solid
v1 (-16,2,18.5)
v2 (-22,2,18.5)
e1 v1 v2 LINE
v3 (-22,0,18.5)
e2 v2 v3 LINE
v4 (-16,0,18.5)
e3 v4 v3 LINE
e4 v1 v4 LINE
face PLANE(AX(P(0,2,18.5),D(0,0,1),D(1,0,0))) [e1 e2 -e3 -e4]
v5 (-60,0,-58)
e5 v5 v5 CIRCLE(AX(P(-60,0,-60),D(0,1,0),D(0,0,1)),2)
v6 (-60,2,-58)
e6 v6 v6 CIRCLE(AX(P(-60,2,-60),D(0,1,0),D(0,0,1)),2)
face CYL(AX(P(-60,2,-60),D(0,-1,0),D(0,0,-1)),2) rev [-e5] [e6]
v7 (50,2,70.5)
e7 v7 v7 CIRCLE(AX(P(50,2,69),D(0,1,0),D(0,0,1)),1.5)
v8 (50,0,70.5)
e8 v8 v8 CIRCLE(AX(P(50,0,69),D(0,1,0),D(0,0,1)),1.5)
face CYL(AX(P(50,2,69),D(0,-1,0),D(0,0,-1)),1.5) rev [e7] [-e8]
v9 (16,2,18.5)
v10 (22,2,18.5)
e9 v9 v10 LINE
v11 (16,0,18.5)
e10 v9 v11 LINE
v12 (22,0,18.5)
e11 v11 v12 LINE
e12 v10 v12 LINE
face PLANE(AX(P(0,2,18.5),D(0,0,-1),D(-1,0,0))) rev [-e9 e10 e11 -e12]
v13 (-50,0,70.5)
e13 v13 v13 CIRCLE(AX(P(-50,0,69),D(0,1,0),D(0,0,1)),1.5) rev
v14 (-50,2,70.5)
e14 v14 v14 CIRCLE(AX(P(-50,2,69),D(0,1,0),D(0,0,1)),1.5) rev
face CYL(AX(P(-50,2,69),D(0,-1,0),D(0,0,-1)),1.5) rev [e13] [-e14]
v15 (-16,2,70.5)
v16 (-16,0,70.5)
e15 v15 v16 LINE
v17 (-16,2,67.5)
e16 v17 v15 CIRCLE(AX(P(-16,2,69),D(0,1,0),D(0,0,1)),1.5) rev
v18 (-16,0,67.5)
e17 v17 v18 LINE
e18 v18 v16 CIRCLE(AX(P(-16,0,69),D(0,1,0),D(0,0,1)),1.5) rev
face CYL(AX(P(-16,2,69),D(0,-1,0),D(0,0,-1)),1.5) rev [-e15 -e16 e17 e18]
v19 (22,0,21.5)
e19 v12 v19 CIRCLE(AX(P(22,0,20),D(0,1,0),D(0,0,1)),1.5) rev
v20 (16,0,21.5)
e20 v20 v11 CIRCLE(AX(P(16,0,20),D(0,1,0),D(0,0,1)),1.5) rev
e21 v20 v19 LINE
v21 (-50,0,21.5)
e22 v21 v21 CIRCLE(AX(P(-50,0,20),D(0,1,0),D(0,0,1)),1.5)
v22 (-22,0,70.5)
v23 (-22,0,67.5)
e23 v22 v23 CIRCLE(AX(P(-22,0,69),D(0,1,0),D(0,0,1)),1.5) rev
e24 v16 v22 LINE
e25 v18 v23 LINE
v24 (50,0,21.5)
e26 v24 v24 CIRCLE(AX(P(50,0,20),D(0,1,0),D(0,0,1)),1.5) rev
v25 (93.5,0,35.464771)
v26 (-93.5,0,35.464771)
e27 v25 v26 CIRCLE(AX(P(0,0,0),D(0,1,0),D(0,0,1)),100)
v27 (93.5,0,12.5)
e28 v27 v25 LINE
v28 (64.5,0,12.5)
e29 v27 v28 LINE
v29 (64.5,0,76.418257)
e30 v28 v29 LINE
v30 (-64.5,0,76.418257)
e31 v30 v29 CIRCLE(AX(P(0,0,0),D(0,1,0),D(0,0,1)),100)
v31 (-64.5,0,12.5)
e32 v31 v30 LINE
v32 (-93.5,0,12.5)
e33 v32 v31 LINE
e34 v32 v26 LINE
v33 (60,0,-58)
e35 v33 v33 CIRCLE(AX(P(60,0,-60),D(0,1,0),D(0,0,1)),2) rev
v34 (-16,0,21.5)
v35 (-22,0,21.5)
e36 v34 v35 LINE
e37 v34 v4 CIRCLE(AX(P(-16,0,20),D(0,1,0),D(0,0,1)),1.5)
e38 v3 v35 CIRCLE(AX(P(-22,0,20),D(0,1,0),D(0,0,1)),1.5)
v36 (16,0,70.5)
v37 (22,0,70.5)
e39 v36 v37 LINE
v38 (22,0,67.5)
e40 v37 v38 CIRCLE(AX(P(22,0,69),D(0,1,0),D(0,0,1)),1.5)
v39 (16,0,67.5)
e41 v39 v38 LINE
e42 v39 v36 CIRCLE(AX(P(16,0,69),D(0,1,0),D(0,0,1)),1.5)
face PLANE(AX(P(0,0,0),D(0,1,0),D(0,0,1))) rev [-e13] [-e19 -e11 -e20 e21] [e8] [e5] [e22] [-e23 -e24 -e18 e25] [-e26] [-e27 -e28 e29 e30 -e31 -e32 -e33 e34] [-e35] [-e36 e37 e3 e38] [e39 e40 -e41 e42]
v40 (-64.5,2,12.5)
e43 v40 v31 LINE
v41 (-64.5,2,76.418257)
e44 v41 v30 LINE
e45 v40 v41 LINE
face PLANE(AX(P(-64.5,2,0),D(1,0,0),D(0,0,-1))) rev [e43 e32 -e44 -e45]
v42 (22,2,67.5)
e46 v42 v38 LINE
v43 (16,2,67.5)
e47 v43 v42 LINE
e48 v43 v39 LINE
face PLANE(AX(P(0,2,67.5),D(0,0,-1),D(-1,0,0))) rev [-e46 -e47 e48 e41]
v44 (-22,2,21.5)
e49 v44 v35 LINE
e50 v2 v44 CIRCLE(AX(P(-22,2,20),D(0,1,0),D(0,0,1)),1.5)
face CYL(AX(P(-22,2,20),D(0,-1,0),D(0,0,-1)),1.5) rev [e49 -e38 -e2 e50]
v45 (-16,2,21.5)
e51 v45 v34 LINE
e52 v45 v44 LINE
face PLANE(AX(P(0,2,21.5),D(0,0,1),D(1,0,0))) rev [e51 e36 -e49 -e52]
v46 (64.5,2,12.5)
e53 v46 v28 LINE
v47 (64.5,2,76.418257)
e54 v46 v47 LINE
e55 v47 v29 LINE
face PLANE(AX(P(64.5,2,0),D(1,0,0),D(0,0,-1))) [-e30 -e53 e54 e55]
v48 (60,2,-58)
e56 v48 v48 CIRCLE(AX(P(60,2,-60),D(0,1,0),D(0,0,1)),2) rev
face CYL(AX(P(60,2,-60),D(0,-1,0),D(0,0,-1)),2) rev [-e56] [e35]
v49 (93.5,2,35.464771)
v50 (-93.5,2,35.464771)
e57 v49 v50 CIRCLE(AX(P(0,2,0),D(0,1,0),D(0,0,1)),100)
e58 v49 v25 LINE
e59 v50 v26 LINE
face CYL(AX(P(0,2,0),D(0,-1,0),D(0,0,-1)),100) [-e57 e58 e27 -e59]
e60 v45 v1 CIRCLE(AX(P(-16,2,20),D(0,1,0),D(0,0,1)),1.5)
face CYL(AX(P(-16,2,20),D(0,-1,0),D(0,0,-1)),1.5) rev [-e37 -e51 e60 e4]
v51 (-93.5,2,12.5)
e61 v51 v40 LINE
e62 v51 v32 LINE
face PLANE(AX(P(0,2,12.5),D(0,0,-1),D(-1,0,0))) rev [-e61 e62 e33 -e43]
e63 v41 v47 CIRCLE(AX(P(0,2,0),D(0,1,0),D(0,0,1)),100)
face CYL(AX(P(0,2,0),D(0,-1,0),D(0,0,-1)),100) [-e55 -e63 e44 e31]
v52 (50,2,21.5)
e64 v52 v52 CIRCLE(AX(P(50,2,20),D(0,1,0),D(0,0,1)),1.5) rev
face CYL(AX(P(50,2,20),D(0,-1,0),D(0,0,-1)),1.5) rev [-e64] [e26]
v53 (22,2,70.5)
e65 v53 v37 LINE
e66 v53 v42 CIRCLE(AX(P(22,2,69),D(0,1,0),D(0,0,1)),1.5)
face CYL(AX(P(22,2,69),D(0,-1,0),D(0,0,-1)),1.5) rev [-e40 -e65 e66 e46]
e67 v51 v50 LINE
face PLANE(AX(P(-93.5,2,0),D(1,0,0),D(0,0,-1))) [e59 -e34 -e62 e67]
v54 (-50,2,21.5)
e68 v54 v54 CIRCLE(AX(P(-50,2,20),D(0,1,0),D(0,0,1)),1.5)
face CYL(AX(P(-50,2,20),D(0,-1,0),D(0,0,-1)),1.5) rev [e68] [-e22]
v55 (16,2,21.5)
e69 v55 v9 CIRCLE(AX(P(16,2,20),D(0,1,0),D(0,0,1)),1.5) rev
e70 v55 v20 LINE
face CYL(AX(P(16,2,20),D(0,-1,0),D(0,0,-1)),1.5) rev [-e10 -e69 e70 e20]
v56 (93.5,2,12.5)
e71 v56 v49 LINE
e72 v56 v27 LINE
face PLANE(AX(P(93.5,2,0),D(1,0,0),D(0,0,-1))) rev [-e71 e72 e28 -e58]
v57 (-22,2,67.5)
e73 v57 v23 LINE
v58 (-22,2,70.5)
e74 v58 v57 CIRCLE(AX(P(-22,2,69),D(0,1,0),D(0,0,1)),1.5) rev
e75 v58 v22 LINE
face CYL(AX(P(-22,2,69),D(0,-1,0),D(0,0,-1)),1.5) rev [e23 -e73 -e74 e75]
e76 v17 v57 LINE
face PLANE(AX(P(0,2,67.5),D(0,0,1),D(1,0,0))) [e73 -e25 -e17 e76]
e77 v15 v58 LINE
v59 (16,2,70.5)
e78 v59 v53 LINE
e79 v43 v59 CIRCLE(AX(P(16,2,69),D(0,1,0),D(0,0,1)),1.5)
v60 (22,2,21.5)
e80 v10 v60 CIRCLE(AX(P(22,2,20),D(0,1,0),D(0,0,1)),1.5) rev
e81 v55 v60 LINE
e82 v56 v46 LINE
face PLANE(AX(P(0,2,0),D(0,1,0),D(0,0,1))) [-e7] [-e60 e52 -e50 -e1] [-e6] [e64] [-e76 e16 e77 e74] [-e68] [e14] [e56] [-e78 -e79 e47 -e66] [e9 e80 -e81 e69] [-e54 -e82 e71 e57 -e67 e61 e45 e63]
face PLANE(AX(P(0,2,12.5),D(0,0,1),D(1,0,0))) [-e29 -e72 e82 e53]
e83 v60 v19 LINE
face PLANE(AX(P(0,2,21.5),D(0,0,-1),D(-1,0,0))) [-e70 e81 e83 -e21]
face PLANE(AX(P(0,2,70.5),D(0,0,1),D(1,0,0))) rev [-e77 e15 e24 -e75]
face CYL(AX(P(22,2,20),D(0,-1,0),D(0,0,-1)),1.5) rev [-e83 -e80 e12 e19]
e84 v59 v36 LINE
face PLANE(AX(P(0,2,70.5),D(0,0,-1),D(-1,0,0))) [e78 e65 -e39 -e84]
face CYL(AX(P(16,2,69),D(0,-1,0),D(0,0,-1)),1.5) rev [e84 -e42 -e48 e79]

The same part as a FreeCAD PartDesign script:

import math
import FreeCAD as App
import Part
import Sketcher

V = App.Vector
Q = App.Units.Quantity

doc = App.newDocument("Part")
params = doc.addObject("Spreadsheet::Sheet", "Params")
for row, (alias, value) in enumerate([
    ("sketch1_diameter", "3 mm"),
    ("sketch1_diameter2", "4 mm"),
    ("sketch1_radius", "100 mm"),
    ("sketch1_width", "29 mm"),
    ("sketch1_width2", "6 mm"),
    ("pad1_length", "2 mm"),
], start=1):
    params.set(f"A{row}", alias)
    params.set(f"B{row}", "=" + value)
    params.setAlias(f"B{row}", alias)

body = doc.addObject("PartDesign::Body", "Body")

# Sketch on XZ plane
sketch1 = body.newObject("Sketcher::SketchObject", "Sketch")
sketch1.AttachmentSupport = (doc.getObject("XZ_Plane"), [""])
sketch1.MapMode = "FlatFace"
sketch1.addGeometry([
    Part.LineSegment(V(-93.5, 35.5, 0), V(-93.5, 12.5, 0)),  # 0
    Part.LineSegment(V(-93.5, 12.5, 0), V(-64.5, 12.5, 0)),  # 1
    Part.LineSegment(V(-64.5, 12.5, 0), V(-64.5, 76.4, 0)),  # 2
    Part.ArcOfCircle(Part.Circle(V(0, 0, 0), V(0, 0, 1), 100), math.radians(50), math.radians(130)),  # 3
    Part.LineSegment(V(64.5, 76.4, 0), V(64.5, 12.5, 0)),  # 4
    Part.LineSegment(V(64.5, 12.5, 0), V(93.5, 12.5, 0)),  # 5
    Part.LineSegment(V(93.5, 12.5, 0), V(93.5, 35.5, 0)),  # 6
    Part.ArcOfCircle(Part.Circle(V(0, 0, 0), V(0, 0, 1), 100), math.radians(159), math.radians(381)),  # 7
    Part.Circle(V(-50, 69, 0), V(0, 0, 1), 1.5),  # 8
    Part.ArcOfCircle(Part.Circle(V(-22, 69, 0), V(0, 0, 1), 1.5), math.radians(90), math.radians(270)),  # 9
    Part.LineSegment(V(-22, 67.5, 0), V(-16, 67.5, 0)),  # 10
    Part.ArcOfCircle(Part.Circle(V(-16, 69, 0), V(0, 0, 1), 1.5), math.radians(-90), math.radians(90)),  # 11
    Part.LineSegment(V(-16, 70.5, 0), V(-22, 70.5, 0)),  # 12
    Part.Circle(V(-50, 20, 0), V(0, 0, 1), 1.5),  # 13
    Part.LineSegment(V(-22, 18.5, 0), V(-16, 18.5, 0)),  # 14
    Part.ArcOfCircle(Part.Circle(V(-16, 20, 0), V(0, 0, 1), 1.5), math.radians(-90), math.radians(90)),  # 15
    Part.LineSegment(V(-16, 21.5, 0), V(-22, 21.5, 0)),  # 16
    Part.ArcOfCircle(Part.Circle(V(-22, 20, 0), V(0, 0, 1), 1.5), math.radians(90), math.radians(270)),  # 17
    Part.LineSegment(V(22, 70.5, 0), V(16, 70.5, 0)),  # 18
    Part.ArcOfCircle(Part.Circle(V(16, 69, 0), V(0, 0, 1), 1.5), math.radians(90), math.radians(270)),  # 19
    Part.LineSegment(V(16, 67.5, 0), V(22, 67.5, 0)),  # 20
    Part.ArcOfCircle(Part.Circle(V(22, 69, 0), V(0, 0, 1), 1.5), math.radians(-90), math.radians(90)),  # 21
    Part.Circle(V(50, 69, 0), V(0, 0, 1), 1.5),  # 22
    Part.ArcOfCircle(Part.Circle(V(22, 20, 0), V(0, 0, 1), 1.5), math.radians(-90), math.radians(90)),  # 23
    Part.LineSegment(V(22, 21.5, 0), V(16, 21.5, 0)),  # 24
    Part.ArcOfCircle(Part.Circle(V(16, 20, 0), V(0, 0, 1), 1.5), math.radians(90), math.radians(270)),  # 25
    Part.LineSegment(V(16, 18.5, 0), V(22, 18.5, 0)),  # 26
    Part.Circle(V(50, 20, 0), V(0, 0, 1), 1.5),  # 27
    Part.Circle(V(-60, -60, 0), V(0, 0, 1), 2),  # 28
    Part.Circle(V(60, -60, 0), V(0, 0, 1), 2),  # 29
], False)
sketch1.addConstraint([
    Sketcher.Constraint("Coincident", 0, 2, 1, 1),
    Sketcher.Constraint("Coincident", 1, 2, 2, 1),
    Sketcher.Constraint("Coincident", 2, 2, 3, 2),
    Sketcher.Constraint("Coincident", 3, 1, 4, 1),
    Sketcher.Constraint("Coincident", 4, 2, 5, 1),
    Sketcher.Constraint("Coincident", 5, 2, 6, 1),
    Sketcher.Constraint("Coincident", 6, 2, 7, 2),
    Sketcher.Constraint("Coincident", 7, 1, 0, 1),
    Sketcher.Constraint("Tangent", 9, 2, 10, 1),
    Sketcher.Constraint("Tangent", 10, 2, 11, 1),
    Sketcher.Constraint("Tangent", 11, 2, 12, 1),
    Sketcher.Constraint("Tangent", 12, 2, 9, 1),
    Sketcher.Constraint("Tangent", 14, 2, 15, 1),
    Sketcher.Constraint("Tangent", 15, 2, 16, 1),
    Sketcher.Constraint("Tangent", 16, 2, 17, 1),
    Sketcher.Constraint("Tangent", 17, 2, 14, 1),
    Sketcher.Constraint("Tangent", 18, 2, 19, 1),
    Sketcher.Constraint("Tangent", 19, 2, 20, 1),
    Sketcher.Constraint("Tangent", 20, 2, 21, 1),
    Sketcher.Constraint("Tangent", 21, 2, 18, 1),
    Sketcher.Constraint("Tangent", 23, 2, 24, 1),
    Sketcher.Constraint("Tangent", 24, 2, 25, 1),
    Sketcher.Constraint("Tangent", 25, 2, 26, 1),
    Sketcher.Constraint("Tangent", 26, 2, 23, 1),
    Sketcher.Constraint("Vertical", 0),
    Sketcher.Constraint("Horizontal", 1),
    Sketcher.Constraint("Vertical", 2),
    Sketcher.Constraint("Vertical", 4),
    Sketcher.Constraint("Horizontal", 5),
    Sketcher.Constraint("Vertical", 6),
    Sketcher.Constraint("Horizontal", 10),
    Sketcher.Constraint("Horizontal", 12),
    Sketcher.Constraint("Horizontal", 14),
    Sketcher.Constraint("Horizontal", 16),
    Sketcher.Constraint("Horizontal", 18),
    Sketcher.Constraint("Horizontal", 20),
    Sketcher.Constraint("Horizontal", 24),
    Sketcher.Constraint("Horizontal", 26),
    Sketcher.Constraint("Coincident", 3, 3, -1, 1),
    Sketcher.Constraint("Coincident", 7, 3, -1, 1),
    Sketcher.Constraint("Equal", 3, 7),
    Sketcher.Constraint("Equal", 8, 9),
    Sketcher.Constraint("Equal", 11, 13),
    Sketcher.Constraint("Equal", 13, 15),
    Sketcher.Constraint("Equal", 17, 19),
    Sketcher.Constraint("Equal", 21, 22),
    Sketcher.Constraint("Equal", 22, 23),
    Sketcher.Constraint("Equal", 25, 27),
    Sketcher.Constraint("Equal", 28, 29),
    Sketcher.Constraint("Symmetric", 11, 3, 19, 3, -2),
    Sketcher.Constraint("Symmetric", 8, 3, 22, 3, -2),
    Sketcher.Constraint("Symmetric", 17, 3, 23, 3, -2),
    Sketcher.Constraint("Symmetric", 13, 3, 27, 3, -2),
    Sketcher.Constraint("Symmetric", 28, 3, 29, 3, -2),
    Sketcher.Constraint("Symmetric", 1, 2, 4, 2, -2),
    Sketcher.Constraint("Horizontal", 8, 3, 9, 3),
    Sketcher.Constraint("Horizontal", 13, 3, 15, 3),
    Sketcher.Constraint("Horizontal", 6, 2, 7, 1),
    Sketcher.Constraint("Vertical", 8, 3, 13, 3),
    Sketcher.Constraint("Vertical", 11, 3, 15, 3),
    Sketcher.Constraint("Vertical", 9, 3, 17, 3),
    Sketcher.Constraint("Vertical", 21, 3, 23, 3),
    Sketcher.Constraint("Vertical", 19, 3, 25, 3),
    Sketcher.Constraint("Diameter", 8, Q("3 mm")),
    Sketcher.Constraint("Diameter", 28, Q("4 mm")),
    Sketcher.Constraint("Radius", 3, Q("100 mm")),
    Sketcher.Constraint("DistanceX", 1, 1, 1, 2, Q("29 mm")),
    Sketcher.Constraint("DistanceX", 10, 1, 10, 2, Q("6 mm")),
    Sketcher.Constraint("DistanceX", 8, 3, -1, 1, Q("50 mm")),
    Sketcher.Constraint("DistanceY", -1, 1, 8, 3, Q("69 mm")),
    Sketcher.Constraint("DistanceX", 9, 3, -1, 1, Q("22 mm")),
    Sketcher.Constraint("DistanceY", -1, 1, 13, 3, Q("20 mm")),
    Sketcher.Constraint("DistanceX", 28, 3, -1, 1, Q("60 mm")),
    Sketcher.Constraint("DistanceY", 28, 3, -1, 1, Q("60 mm")),
    Sketcher.Constraint("DistanceX", 0, 2, -1, 1, Q("93.5 mm")),
    Sketcher.Constraint("DistanceY", -1, 1, 0, 2, Q("12.5 mm")),
])
sketch1.setExpression("Constraints[63]", "Params.sketch1_diameter")
sketch1.setExpression("Constraints[64]", "Params.sketch1_diameter2")
sketch1.setExpression("Constraints[65]", "Params.sketch1_radius")
sketch1.setExpression("Constraints[66]", "Params.sketch1_width")
sketch1.setExpression("Constraints[67]", "Params.sketch1_width2")
pad1 = body.newObject("PartDesign::Pad", "Pad")
pad1.Profile = sketch1
pad1.setExpression("Length", "Params.pad1_length")
pad1.Reversed = True

doc.recompute()
